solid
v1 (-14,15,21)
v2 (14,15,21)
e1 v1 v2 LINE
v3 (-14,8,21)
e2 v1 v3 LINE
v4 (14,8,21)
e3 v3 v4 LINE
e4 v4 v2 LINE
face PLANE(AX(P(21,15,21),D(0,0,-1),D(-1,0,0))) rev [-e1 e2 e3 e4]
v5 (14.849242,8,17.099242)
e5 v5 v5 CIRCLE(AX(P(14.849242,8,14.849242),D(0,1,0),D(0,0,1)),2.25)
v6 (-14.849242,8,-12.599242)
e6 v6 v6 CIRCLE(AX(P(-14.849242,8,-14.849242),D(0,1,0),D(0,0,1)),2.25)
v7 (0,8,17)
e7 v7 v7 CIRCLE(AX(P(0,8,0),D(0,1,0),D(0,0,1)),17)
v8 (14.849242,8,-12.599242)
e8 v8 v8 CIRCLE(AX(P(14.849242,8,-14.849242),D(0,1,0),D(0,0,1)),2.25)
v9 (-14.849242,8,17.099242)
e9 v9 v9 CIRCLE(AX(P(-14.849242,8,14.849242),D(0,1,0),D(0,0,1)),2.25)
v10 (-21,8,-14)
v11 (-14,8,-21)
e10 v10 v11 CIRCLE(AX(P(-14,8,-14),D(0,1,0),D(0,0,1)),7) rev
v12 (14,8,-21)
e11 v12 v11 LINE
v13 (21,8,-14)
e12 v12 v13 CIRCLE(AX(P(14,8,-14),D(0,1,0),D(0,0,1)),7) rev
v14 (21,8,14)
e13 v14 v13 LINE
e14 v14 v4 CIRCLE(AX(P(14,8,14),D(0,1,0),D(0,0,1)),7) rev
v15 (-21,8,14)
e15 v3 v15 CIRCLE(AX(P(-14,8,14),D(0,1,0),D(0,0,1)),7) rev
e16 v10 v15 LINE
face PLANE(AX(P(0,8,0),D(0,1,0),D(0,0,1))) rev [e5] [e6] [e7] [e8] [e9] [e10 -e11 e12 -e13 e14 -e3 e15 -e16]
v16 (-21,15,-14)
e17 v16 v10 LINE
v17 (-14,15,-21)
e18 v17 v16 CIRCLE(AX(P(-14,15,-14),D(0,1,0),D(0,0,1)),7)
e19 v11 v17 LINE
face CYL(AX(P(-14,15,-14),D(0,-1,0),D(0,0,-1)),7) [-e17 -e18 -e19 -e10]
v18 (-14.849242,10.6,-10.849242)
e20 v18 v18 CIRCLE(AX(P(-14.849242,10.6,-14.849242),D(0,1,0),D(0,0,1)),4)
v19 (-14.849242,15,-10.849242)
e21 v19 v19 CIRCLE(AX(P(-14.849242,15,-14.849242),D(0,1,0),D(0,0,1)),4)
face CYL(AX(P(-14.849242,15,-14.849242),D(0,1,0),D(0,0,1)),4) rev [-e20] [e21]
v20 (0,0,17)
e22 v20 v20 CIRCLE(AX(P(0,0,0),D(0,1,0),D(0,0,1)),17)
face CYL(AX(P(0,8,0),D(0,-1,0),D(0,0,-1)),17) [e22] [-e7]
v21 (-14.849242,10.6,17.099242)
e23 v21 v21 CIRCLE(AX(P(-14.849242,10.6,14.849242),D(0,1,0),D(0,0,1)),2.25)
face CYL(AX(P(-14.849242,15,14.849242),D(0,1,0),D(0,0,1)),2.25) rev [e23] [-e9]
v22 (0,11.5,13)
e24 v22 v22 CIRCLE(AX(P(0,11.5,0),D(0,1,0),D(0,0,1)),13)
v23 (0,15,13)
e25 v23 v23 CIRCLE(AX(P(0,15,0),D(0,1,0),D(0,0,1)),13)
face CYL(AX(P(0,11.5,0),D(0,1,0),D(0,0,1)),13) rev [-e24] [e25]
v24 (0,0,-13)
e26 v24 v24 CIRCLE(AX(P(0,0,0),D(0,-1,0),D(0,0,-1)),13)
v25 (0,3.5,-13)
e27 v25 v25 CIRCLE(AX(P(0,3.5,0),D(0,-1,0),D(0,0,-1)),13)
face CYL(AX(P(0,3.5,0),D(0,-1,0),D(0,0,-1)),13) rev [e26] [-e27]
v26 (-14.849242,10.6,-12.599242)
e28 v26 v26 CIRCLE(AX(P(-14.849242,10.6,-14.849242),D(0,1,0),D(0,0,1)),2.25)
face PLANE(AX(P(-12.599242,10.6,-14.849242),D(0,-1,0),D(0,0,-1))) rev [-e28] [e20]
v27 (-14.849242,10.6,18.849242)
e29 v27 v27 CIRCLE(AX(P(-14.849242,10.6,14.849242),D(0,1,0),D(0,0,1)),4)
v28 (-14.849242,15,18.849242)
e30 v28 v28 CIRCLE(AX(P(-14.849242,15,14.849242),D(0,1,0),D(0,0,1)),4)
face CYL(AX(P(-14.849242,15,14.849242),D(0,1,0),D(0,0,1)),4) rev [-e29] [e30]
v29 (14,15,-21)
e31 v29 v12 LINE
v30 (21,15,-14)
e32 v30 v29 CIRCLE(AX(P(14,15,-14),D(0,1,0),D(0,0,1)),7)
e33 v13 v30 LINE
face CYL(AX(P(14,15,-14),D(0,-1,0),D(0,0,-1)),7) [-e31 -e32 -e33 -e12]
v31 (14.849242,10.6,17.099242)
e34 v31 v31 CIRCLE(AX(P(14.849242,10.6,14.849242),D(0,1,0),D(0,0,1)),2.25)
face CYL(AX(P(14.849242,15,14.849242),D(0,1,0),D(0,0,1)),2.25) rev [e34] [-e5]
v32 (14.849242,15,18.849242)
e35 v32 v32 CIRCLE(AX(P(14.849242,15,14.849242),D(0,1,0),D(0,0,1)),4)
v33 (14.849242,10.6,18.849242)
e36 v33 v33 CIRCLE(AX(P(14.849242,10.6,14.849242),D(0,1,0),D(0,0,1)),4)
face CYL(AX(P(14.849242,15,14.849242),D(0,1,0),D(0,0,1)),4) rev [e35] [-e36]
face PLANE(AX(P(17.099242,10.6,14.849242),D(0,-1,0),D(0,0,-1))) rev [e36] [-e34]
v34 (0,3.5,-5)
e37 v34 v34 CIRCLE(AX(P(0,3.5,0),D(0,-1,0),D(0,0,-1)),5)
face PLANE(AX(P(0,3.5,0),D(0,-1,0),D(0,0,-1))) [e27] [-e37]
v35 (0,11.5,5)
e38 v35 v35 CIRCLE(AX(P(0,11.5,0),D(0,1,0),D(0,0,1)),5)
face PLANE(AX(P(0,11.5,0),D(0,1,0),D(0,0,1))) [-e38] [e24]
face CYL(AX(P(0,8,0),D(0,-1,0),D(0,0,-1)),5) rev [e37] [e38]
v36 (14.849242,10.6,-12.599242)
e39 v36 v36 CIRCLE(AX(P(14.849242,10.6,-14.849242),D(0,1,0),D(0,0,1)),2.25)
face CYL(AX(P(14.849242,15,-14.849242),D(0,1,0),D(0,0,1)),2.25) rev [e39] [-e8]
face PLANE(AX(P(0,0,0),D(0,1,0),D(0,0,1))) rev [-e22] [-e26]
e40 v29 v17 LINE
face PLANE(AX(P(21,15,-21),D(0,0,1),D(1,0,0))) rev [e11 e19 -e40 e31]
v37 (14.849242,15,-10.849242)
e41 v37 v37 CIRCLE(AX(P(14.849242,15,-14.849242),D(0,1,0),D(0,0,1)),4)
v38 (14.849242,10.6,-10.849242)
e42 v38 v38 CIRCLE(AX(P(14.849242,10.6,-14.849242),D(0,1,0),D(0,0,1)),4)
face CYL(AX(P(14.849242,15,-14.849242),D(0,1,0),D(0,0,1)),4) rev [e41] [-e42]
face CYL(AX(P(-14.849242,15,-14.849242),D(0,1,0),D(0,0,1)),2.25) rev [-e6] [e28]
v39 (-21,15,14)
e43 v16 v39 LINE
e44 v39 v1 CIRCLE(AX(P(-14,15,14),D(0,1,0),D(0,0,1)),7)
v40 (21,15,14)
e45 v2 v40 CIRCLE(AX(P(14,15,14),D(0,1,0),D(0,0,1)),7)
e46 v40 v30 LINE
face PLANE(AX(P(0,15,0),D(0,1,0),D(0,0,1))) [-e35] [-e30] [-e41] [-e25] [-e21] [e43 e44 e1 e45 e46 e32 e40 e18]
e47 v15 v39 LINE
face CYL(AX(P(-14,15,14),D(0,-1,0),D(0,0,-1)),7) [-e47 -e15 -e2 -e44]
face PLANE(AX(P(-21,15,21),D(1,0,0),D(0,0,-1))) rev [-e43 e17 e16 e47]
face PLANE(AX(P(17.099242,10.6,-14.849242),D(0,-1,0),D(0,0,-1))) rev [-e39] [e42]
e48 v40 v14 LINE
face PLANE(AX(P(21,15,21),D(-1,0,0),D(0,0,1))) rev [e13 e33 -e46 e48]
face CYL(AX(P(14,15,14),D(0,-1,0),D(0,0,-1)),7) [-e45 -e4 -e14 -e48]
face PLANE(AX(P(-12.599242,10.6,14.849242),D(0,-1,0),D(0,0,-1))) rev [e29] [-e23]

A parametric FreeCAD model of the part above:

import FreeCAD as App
import Part
import Sketcher


def edges_at(feature, points):
    """Names of the edges that pass closest to the given points."""
    edges = feature.Shape.Edges
    near = lambda p: min(range(len(edges)), key=lambda i: edges[i].distToShape(Part.Vertex(*p))[0])
    return sorted({f"Edge{near(p) + 1}" for p in points})


def add_polygon(sketch, points):
    """Adds a closed chain of lines whose ends are joined by coincident constraints."""
    first, n = sketch.GeometryCount, len(points)
    for a, b in zip(points, points[1:] + points[:1]):
        sketch.addGeometry(Part.LineSegment(App.Vector(*a, 0), App.Vector(*b, 0)), False)
    for i in range(n):
        sketch.addConstraint(Sketcher.Constraint("Coincident", first + i, 2, first + (i + 1) % n, 1))

doc = App.newDocument("Part")
body = doc.addObject("PartDesign::Body", "Body")

sketch1 = body.newObject("Sketcher::SketchObject", "Sketch")
sketch1.AttachmentSupport = (doc.getObject("XZ_Plane"), [""])
sketch1.MapMode = "FlatFace"
sketch1.addGeometry(Part.Circle(App.Vector(0, 0, 0), App.Vector(0, 0, 1), 17), False)
sketch1.addGeometry(Part.Circle(App.Vector(0, 0, 0), App.Vector(0, 0, 1), 5), False)
sketch1.addConstraint(Sketcher.Constraint("Coincident", 0, 3, -1, 1))
sketch1.addConstraint(Sketcher.Constraint("Coincident", 1, 3, -1, 1))
sketch1.addConstraint(Sketcher.Constraint("Diameter", 0, 34.0))
sketch1.addConstraint(Sketcher.Constraint("Diameter", 1, 10.0))
pad1 = body.newObject("PartDesign::Pad", "Pad")
pad1.Profile = sketch1
pad1.Length = 8
pad1.Reversed = True

sketch2 = body.newObject("Sketcher::SketchObject", "Sketch001")
sketch2.AttachmentSupport = (doc.getObject("XZ_Plane"), [""])
sketch2.MapMode = "FlatFace"
sketch2.AttachmentOffset = App.Placement(App.Vector(0, 0, -8), App.Rotation())
add_polygon(sketch2, [(-21, -21), (-21, 21), (21, 21), (21, -21)])
sketch2.addGeometry(Part.Circle(App.Vector(0, 0, 0), App.Vector(0, 0, 1), 5), False)
sketch2.addConstraint(Sketcher.Constraint("Vertical", 0))
sketch2.addConstraint(Sketcher.Constraint("Horizontal", 1))
sketch2.addConstraint(Sketcher.Constraint("Vertical", 2))
sketch2.addConstraint(Sketcher.Constraint("Horizontal", 3))
sketch2.addConstraint(Sketcher.Constraint("Coincident", 4, 3, -1, 1))
sketch2.addConstraint(Sketcher.Constraint("Symmetric", 0, 2, 2, 2, -1, 1))
sketch2.addConstraint(Sketcher.Constraint("Equal", 3, 0))
sketch2.addConstraint(Sketcher.Constraint("Diameter", 4, 10.0))
sketch2.addConstraint(Sketcher.Constraint("DistanceX", 1, 1, 1, 2, 42.0))
pad2 = body.newObject("PartDesign::Pad", "Pad001")
pad2.Profile = sketch2
pad2.Length = 7
pad2.Reversed = True
doc.recompute()

fillet = body.newObject("PartDesign::Fillet", "Fillet")
fillet.Base = (pad2, edges_at(pad2, [
    (-21, 11.5, -21),
    (-21, 11.5, 21),
    (21, 11.5, 21),
    (21, 11.5, -21),
]))
fillet.Radius = 7

sketch3 = body.newObject("Sketcher::SketchObject", "Sketch002")
sketch3.AttachmentSupport = (doc.getObject("XZ_Plane"), [""])
sketch3.MapMode = "FlatFace"
sketch3.AttachmentOffset = App.Placement(App.Vector(0, 0, -15), App.Rotation())
sketch3.addGeometry(Part.Circle(App.Vector(-14.8, -14.8, 0), App.Vector(0, 0, 1), 2.2), False)
sketch3.addGeometry(Part.Circle(App.Vector(14.8, -14.8, 0), App.Vector(0, 0, 1), 2.2), False)
sketch3.addGeometry(Part.Circle(App.Vector(14.8, 14.8, 0), App.Vector(0, 0, 1), 2.2), False)
sketch3.addGeometry(Part.Circle(App.Vector(-14.8, 14.8, 0), App.Vector(0, 0, 1), 2.2), False)
sketch3.addConstraint(Sketcher.Constraint("Equal", 0, 1))
sketch3.addConstraint(Sketcher.Constraint("Equal", 1, 2))
sketch3.addConstraint(Sketcher.Constraint("Equal", 2, 3))
sketch3.addConstraint(Sketcher.Constraint("Symmetric", 0, 3, 2, 3, -1, 1))
sketch3.addConstraint(Sketcher.Constraint("Symmetric", 1, 3, 3, 3, -1, 1))
sketch3.addConstraint(Sketcher.Constraint("Symmetric", 0, 3, 1, 3, -2))
sketch3.addConstraint(Sketcher.Constraint("Diameter", 0, 4.5))
sketch3.addConstraint(Sketcher.Constraint("DistanceX", 0, 3, -1, 1, 14.849242))
sketch3.addConstraint(Sketcher.Constraint("DistanceY", 0, 3, -1, 1, 14.849242))
doc.recompute()
hole = body.newObject("PartDesign::Hole", "Hole")
hole.Profile = sketch3
hole.ThreadType = "None"
hole.Diameter = 4.5
hole.DepthType = "ThroughAll"
hole.HoleCutType = "Counterbore"
hole.HoleCutDiameter = 8
hole.HoleCutDepth = 4.4
hole.Reversed = True

sketch4 = body.newObject("Sketcher::SketchObject", "Sketch003")
sketch4.AttachmentSupport = (doc.getObject("XZ_Plane"), [""])
sketch4.MapMode = "FlatFace"
sketch4.addGeometry(Part.Circle(App.Vector(0, 0, 0), App.Vector(0, 0, 1), 13), False)
sketch4.addConstraint(Sketcher.Constraint("Coincident", 0, 3, -1, 1))
sketch4.addConstraint(Sketcher.Constraint("Diameter", 0, 26.0))
pocket1 = body.newObject("PartDesign::Pocket", "Pocket")
pocket1.Profile = sketch4
pocket1.Length = 3.5

sketch5 = body.newObject("Sketcher::SketchObject", "Sketch004")
sketch5.AttachmentSupport = (doc.getObject("XZ_Plane"), [""])
sketch5.MapMode = "FlatFace"
sketch5.AttachmentOffset = App.Placement(App.Vector(0, 0, -11.5), App.Rotation())
sketch5.addGeometry(Part.Circle(App.Vector(0, 0, 0), App.Vector(0, 0, 1), 13), False)
sketch5.addConstraint(Sketcher.Constraint("Coincident", 0, 3, -1, 1))
sketch5.addConstraint(Sketcher.Constraint("Diameter", 0, 26.0))
pocket2 = body.newObject("PartDesign::Pocket", "Pocket001")
pocket2.Profile = sketch5
pocket2.Length = 3.5

doc.recompute()
